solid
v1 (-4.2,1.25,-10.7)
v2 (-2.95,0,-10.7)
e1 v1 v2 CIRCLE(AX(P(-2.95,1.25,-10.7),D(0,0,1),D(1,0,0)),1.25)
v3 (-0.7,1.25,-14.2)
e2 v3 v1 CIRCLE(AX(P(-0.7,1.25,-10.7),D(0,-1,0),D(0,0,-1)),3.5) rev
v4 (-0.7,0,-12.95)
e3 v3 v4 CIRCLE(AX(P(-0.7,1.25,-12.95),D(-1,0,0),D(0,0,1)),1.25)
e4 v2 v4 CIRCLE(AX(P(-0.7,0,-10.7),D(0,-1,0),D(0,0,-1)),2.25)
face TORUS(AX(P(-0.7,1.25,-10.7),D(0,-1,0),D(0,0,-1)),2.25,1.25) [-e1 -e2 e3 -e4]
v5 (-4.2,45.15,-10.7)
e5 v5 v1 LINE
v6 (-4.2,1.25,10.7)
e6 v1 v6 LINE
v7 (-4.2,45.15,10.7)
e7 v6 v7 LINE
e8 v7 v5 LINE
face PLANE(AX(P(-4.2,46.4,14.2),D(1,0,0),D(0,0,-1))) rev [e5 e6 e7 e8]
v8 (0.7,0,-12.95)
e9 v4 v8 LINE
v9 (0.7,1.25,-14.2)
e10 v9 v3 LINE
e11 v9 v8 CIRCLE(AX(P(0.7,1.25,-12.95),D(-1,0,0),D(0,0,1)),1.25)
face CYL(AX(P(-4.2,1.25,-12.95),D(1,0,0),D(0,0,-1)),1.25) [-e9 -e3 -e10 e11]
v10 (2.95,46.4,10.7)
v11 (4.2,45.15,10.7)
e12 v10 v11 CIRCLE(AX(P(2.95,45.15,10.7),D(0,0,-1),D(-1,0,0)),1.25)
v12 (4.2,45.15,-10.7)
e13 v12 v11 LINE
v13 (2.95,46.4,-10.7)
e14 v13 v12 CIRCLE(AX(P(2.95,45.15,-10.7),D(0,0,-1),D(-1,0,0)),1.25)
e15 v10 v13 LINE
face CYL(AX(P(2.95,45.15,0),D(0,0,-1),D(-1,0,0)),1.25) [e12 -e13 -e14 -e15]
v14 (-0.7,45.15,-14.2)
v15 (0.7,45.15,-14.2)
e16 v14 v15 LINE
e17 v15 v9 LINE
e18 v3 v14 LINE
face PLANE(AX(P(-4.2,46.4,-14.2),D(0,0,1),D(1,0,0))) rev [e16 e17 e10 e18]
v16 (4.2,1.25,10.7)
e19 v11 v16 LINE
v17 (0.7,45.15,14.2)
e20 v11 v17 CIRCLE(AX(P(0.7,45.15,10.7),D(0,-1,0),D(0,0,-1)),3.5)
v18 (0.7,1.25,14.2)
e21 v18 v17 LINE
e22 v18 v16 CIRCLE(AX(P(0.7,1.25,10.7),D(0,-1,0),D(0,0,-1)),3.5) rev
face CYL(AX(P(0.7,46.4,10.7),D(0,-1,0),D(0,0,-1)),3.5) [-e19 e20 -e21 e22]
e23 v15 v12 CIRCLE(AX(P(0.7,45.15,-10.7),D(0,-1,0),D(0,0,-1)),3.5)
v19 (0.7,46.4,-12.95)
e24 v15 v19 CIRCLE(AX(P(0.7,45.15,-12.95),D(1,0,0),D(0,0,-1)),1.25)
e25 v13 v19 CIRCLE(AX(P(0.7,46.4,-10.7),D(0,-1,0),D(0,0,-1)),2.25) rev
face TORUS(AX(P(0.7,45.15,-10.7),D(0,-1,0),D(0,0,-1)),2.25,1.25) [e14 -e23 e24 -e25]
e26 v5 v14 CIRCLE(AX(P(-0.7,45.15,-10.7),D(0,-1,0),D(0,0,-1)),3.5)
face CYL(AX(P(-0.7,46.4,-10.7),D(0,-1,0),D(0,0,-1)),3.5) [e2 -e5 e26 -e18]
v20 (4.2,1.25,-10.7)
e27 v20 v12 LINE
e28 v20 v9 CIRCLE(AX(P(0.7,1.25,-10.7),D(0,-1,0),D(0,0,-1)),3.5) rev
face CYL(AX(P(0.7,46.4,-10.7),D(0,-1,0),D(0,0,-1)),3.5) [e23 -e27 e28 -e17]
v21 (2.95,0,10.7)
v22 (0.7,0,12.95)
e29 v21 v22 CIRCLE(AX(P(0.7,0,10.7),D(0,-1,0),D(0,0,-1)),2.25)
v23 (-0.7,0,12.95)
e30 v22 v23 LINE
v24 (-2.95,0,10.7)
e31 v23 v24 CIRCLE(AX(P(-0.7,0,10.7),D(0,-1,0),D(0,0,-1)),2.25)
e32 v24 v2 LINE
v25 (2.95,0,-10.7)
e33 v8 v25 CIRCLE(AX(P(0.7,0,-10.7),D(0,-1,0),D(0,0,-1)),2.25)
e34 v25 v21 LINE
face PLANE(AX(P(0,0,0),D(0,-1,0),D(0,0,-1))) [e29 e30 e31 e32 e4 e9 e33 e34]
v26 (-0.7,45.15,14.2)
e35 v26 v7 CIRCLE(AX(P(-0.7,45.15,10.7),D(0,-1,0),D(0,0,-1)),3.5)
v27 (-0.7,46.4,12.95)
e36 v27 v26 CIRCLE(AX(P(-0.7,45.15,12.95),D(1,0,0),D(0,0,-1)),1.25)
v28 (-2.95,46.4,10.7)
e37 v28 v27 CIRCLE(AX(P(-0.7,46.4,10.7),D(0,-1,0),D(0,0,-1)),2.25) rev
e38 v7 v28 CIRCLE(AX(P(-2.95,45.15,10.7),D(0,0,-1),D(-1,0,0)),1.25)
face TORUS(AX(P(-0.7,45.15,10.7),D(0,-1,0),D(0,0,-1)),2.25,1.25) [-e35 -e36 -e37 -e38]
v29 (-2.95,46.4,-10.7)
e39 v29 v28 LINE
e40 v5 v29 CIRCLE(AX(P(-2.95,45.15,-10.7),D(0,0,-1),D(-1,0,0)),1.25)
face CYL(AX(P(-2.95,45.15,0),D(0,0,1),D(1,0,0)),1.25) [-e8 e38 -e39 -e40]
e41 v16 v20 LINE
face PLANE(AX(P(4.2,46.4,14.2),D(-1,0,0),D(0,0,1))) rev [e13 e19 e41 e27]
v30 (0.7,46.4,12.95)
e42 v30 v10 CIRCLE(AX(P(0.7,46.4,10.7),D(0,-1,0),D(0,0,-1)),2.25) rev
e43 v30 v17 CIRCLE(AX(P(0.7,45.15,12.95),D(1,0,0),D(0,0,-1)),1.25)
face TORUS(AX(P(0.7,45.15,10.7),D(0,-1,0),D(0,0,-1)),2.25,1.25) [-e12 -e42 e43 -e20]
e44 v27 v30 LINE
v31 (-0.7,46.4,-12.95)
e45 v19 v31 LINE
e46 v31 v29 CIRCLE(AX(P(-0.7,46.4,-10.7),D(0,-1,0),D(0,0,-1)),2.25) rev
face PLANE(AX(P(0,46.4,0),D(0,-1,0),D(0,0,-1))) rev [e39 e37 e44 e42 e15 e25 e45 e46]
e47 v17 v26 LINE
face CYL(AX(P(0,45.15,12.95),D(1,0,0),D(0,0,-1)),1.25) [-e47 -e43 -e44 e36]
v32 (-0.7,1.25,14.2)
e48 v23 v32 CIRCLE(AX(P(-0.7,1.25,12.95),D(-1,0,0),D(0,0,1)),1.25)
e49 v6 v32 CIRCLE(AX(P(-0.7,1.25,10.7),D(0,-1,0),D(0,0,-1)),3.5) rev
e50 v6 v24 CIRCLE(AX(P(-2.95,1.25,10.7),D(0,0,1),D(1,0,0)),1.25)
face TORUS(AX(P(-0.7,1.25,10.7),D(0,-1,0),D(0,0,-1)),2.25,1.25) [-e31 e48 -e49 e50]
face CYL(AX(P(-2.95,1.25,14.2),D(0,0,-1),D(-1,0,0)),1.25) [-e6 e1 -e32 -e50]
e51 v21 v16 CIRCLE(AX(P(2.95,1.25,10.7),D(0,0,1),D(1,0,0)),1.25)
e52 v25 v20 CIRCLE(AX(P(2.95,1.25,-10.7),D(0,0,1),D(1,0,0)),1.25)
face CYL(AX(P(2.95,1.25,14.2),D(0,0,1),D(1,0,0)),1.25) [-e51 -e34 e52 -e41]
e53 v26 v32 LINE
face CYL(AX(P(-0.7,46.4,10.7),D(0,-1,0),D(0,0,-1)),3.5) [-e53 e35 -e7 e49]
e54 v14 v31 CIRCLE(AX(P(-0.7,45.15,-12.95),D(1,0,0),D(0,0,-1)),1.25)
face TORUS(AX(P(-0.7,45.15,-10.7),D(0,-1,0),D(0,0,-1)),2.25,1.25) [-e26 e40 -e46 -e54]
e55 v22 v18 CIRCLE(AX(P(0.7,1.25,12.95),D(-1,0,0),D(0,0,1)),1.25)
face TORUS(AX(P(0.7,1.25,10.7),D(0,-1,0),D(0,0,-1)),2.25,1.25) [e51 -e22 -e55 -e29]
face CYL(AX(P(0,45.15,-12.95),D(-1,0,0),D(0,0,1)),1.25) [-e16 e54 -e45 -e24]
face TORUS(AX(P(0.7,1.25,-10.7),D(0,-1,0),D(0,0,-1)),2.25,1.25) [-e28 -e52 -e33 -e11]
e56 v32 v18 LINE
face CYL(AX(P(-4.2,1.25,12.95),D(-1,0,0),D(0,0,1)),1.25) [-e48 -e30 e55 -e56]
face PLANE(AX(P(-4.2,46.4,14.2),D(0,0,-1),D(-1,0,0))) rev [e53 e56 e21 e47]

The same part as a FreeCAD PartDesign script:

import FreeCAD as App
import Part
import Sketcher
from FreeCAD import Vector
Q = App.Units.Quantity


def edges_at(feature, points):
    """Names of the edges that pass closest to the given points."""
    edges = feature.Shape.Edges
    near = lambda p: min(range(len(edges)), key=lambda i: edges[i].distToShape(Part.Vertex(*p))[0])
    return sorted({f"Edge{near(p) + 1}" for p in points})

doc = App.newDocument("Part")
body = doc.addObject("PartDesign::Body", "Body")

sketch1 = body.newObject("Sketcher::SketchObject", "Sketch")
sketch1.AttachmentSupport = (doc.getObject("XZ_Plane"), [""])
sketch1.MapMode = "FlatFace"
sketch1.addGeometry([
    Part.LineSegment(Vector(-4, -14, 0), Vector(-4, 14, 0)),
    Part.LineSegment(Vector(-4, 14, 0), Vector(4, 14, 0)),
    Part.LineSegment(Vector(4, 14, 0), Vector(4, -14, 0)),
    Part.LineSegment(Vector(4, -14, 0), Vector(-4, -14, 0)),
], False)
sketch1.addConstraint([
    Sketcher.Constraint("Coincident", 0, 2, 1, 1),
    Sketcher.Constraint("Coincident", 1, 2, 2, 1),
    Sketcher.Constraint("Coincident", 2, 2, 3, 1),
    Sketcher.Constraint("Coincident", 3, 2, 0, 1),
    Sketcher.Constraint("Vertical", 0),
    Sketcher.Constraint("Horizontal", 1),
    Sketcher.Constraint("Vertical", 2),
    Sketcher.Constraint("Horizontal", 3),
    Sketcher.Constraint("Symmetric", 0, 2, 2, 2, -1, 1),
    Sketcher.Constraint("DistanceX", 1, 1, 1, 2, Q("8.4 mm")),
    Sketcher.Constraint("DistanceY", 0, 1, 0, 2, Q("28.4 mm")),
])
pad1 = body.newObject("PartDesign::Pad", "Pad")
pad1.Profile = sketch1
pad1.Length = 46.4
pad1.Reversed = True
doc.recompute()

fillet = body.newObject("PartDesign::Fillet", "Fillet")
fillet.Base = (pad1, edges_at(pad1, [
    (4.2, 23.2, 14.2),
    (-4.2, 23.2, 14.2),
    (-4.2, 23.2, -14.2),
    (4.2, 23.2, -14.2),
]))
fillet.Radius = 3.5
doc.recompute()

fillet2 = body.newObject("PartDesign::Fillet", "Fillet001")
fillet2.Base = (fillet, edges_at(fillet, [
    (-4.2, 0, 0),
    (-4.2, 46.4, 0),
    (4.2, 0, 0),
    (0, 0, 14.2),
    (0, 0, -14.2),
    (-3.175, 0, 13.175),
    (3.175, 0, 13.175),
    (3.175, 0, -13.175),
    (-3.175, 0, -13.175),
    (0, 46.4, -14.2),
    (4.2, 46.4, 0),
    (0, 46.4, 14.2),
    (-3.175, 46.4, 13.175),
    (3.175, 46.4, 13.175),
    (3.175, 46.4, -13.175),
    (-3.175, 46.4, -13.175),
]))
fillet2.Radius = 1.25

doc.recompute()
